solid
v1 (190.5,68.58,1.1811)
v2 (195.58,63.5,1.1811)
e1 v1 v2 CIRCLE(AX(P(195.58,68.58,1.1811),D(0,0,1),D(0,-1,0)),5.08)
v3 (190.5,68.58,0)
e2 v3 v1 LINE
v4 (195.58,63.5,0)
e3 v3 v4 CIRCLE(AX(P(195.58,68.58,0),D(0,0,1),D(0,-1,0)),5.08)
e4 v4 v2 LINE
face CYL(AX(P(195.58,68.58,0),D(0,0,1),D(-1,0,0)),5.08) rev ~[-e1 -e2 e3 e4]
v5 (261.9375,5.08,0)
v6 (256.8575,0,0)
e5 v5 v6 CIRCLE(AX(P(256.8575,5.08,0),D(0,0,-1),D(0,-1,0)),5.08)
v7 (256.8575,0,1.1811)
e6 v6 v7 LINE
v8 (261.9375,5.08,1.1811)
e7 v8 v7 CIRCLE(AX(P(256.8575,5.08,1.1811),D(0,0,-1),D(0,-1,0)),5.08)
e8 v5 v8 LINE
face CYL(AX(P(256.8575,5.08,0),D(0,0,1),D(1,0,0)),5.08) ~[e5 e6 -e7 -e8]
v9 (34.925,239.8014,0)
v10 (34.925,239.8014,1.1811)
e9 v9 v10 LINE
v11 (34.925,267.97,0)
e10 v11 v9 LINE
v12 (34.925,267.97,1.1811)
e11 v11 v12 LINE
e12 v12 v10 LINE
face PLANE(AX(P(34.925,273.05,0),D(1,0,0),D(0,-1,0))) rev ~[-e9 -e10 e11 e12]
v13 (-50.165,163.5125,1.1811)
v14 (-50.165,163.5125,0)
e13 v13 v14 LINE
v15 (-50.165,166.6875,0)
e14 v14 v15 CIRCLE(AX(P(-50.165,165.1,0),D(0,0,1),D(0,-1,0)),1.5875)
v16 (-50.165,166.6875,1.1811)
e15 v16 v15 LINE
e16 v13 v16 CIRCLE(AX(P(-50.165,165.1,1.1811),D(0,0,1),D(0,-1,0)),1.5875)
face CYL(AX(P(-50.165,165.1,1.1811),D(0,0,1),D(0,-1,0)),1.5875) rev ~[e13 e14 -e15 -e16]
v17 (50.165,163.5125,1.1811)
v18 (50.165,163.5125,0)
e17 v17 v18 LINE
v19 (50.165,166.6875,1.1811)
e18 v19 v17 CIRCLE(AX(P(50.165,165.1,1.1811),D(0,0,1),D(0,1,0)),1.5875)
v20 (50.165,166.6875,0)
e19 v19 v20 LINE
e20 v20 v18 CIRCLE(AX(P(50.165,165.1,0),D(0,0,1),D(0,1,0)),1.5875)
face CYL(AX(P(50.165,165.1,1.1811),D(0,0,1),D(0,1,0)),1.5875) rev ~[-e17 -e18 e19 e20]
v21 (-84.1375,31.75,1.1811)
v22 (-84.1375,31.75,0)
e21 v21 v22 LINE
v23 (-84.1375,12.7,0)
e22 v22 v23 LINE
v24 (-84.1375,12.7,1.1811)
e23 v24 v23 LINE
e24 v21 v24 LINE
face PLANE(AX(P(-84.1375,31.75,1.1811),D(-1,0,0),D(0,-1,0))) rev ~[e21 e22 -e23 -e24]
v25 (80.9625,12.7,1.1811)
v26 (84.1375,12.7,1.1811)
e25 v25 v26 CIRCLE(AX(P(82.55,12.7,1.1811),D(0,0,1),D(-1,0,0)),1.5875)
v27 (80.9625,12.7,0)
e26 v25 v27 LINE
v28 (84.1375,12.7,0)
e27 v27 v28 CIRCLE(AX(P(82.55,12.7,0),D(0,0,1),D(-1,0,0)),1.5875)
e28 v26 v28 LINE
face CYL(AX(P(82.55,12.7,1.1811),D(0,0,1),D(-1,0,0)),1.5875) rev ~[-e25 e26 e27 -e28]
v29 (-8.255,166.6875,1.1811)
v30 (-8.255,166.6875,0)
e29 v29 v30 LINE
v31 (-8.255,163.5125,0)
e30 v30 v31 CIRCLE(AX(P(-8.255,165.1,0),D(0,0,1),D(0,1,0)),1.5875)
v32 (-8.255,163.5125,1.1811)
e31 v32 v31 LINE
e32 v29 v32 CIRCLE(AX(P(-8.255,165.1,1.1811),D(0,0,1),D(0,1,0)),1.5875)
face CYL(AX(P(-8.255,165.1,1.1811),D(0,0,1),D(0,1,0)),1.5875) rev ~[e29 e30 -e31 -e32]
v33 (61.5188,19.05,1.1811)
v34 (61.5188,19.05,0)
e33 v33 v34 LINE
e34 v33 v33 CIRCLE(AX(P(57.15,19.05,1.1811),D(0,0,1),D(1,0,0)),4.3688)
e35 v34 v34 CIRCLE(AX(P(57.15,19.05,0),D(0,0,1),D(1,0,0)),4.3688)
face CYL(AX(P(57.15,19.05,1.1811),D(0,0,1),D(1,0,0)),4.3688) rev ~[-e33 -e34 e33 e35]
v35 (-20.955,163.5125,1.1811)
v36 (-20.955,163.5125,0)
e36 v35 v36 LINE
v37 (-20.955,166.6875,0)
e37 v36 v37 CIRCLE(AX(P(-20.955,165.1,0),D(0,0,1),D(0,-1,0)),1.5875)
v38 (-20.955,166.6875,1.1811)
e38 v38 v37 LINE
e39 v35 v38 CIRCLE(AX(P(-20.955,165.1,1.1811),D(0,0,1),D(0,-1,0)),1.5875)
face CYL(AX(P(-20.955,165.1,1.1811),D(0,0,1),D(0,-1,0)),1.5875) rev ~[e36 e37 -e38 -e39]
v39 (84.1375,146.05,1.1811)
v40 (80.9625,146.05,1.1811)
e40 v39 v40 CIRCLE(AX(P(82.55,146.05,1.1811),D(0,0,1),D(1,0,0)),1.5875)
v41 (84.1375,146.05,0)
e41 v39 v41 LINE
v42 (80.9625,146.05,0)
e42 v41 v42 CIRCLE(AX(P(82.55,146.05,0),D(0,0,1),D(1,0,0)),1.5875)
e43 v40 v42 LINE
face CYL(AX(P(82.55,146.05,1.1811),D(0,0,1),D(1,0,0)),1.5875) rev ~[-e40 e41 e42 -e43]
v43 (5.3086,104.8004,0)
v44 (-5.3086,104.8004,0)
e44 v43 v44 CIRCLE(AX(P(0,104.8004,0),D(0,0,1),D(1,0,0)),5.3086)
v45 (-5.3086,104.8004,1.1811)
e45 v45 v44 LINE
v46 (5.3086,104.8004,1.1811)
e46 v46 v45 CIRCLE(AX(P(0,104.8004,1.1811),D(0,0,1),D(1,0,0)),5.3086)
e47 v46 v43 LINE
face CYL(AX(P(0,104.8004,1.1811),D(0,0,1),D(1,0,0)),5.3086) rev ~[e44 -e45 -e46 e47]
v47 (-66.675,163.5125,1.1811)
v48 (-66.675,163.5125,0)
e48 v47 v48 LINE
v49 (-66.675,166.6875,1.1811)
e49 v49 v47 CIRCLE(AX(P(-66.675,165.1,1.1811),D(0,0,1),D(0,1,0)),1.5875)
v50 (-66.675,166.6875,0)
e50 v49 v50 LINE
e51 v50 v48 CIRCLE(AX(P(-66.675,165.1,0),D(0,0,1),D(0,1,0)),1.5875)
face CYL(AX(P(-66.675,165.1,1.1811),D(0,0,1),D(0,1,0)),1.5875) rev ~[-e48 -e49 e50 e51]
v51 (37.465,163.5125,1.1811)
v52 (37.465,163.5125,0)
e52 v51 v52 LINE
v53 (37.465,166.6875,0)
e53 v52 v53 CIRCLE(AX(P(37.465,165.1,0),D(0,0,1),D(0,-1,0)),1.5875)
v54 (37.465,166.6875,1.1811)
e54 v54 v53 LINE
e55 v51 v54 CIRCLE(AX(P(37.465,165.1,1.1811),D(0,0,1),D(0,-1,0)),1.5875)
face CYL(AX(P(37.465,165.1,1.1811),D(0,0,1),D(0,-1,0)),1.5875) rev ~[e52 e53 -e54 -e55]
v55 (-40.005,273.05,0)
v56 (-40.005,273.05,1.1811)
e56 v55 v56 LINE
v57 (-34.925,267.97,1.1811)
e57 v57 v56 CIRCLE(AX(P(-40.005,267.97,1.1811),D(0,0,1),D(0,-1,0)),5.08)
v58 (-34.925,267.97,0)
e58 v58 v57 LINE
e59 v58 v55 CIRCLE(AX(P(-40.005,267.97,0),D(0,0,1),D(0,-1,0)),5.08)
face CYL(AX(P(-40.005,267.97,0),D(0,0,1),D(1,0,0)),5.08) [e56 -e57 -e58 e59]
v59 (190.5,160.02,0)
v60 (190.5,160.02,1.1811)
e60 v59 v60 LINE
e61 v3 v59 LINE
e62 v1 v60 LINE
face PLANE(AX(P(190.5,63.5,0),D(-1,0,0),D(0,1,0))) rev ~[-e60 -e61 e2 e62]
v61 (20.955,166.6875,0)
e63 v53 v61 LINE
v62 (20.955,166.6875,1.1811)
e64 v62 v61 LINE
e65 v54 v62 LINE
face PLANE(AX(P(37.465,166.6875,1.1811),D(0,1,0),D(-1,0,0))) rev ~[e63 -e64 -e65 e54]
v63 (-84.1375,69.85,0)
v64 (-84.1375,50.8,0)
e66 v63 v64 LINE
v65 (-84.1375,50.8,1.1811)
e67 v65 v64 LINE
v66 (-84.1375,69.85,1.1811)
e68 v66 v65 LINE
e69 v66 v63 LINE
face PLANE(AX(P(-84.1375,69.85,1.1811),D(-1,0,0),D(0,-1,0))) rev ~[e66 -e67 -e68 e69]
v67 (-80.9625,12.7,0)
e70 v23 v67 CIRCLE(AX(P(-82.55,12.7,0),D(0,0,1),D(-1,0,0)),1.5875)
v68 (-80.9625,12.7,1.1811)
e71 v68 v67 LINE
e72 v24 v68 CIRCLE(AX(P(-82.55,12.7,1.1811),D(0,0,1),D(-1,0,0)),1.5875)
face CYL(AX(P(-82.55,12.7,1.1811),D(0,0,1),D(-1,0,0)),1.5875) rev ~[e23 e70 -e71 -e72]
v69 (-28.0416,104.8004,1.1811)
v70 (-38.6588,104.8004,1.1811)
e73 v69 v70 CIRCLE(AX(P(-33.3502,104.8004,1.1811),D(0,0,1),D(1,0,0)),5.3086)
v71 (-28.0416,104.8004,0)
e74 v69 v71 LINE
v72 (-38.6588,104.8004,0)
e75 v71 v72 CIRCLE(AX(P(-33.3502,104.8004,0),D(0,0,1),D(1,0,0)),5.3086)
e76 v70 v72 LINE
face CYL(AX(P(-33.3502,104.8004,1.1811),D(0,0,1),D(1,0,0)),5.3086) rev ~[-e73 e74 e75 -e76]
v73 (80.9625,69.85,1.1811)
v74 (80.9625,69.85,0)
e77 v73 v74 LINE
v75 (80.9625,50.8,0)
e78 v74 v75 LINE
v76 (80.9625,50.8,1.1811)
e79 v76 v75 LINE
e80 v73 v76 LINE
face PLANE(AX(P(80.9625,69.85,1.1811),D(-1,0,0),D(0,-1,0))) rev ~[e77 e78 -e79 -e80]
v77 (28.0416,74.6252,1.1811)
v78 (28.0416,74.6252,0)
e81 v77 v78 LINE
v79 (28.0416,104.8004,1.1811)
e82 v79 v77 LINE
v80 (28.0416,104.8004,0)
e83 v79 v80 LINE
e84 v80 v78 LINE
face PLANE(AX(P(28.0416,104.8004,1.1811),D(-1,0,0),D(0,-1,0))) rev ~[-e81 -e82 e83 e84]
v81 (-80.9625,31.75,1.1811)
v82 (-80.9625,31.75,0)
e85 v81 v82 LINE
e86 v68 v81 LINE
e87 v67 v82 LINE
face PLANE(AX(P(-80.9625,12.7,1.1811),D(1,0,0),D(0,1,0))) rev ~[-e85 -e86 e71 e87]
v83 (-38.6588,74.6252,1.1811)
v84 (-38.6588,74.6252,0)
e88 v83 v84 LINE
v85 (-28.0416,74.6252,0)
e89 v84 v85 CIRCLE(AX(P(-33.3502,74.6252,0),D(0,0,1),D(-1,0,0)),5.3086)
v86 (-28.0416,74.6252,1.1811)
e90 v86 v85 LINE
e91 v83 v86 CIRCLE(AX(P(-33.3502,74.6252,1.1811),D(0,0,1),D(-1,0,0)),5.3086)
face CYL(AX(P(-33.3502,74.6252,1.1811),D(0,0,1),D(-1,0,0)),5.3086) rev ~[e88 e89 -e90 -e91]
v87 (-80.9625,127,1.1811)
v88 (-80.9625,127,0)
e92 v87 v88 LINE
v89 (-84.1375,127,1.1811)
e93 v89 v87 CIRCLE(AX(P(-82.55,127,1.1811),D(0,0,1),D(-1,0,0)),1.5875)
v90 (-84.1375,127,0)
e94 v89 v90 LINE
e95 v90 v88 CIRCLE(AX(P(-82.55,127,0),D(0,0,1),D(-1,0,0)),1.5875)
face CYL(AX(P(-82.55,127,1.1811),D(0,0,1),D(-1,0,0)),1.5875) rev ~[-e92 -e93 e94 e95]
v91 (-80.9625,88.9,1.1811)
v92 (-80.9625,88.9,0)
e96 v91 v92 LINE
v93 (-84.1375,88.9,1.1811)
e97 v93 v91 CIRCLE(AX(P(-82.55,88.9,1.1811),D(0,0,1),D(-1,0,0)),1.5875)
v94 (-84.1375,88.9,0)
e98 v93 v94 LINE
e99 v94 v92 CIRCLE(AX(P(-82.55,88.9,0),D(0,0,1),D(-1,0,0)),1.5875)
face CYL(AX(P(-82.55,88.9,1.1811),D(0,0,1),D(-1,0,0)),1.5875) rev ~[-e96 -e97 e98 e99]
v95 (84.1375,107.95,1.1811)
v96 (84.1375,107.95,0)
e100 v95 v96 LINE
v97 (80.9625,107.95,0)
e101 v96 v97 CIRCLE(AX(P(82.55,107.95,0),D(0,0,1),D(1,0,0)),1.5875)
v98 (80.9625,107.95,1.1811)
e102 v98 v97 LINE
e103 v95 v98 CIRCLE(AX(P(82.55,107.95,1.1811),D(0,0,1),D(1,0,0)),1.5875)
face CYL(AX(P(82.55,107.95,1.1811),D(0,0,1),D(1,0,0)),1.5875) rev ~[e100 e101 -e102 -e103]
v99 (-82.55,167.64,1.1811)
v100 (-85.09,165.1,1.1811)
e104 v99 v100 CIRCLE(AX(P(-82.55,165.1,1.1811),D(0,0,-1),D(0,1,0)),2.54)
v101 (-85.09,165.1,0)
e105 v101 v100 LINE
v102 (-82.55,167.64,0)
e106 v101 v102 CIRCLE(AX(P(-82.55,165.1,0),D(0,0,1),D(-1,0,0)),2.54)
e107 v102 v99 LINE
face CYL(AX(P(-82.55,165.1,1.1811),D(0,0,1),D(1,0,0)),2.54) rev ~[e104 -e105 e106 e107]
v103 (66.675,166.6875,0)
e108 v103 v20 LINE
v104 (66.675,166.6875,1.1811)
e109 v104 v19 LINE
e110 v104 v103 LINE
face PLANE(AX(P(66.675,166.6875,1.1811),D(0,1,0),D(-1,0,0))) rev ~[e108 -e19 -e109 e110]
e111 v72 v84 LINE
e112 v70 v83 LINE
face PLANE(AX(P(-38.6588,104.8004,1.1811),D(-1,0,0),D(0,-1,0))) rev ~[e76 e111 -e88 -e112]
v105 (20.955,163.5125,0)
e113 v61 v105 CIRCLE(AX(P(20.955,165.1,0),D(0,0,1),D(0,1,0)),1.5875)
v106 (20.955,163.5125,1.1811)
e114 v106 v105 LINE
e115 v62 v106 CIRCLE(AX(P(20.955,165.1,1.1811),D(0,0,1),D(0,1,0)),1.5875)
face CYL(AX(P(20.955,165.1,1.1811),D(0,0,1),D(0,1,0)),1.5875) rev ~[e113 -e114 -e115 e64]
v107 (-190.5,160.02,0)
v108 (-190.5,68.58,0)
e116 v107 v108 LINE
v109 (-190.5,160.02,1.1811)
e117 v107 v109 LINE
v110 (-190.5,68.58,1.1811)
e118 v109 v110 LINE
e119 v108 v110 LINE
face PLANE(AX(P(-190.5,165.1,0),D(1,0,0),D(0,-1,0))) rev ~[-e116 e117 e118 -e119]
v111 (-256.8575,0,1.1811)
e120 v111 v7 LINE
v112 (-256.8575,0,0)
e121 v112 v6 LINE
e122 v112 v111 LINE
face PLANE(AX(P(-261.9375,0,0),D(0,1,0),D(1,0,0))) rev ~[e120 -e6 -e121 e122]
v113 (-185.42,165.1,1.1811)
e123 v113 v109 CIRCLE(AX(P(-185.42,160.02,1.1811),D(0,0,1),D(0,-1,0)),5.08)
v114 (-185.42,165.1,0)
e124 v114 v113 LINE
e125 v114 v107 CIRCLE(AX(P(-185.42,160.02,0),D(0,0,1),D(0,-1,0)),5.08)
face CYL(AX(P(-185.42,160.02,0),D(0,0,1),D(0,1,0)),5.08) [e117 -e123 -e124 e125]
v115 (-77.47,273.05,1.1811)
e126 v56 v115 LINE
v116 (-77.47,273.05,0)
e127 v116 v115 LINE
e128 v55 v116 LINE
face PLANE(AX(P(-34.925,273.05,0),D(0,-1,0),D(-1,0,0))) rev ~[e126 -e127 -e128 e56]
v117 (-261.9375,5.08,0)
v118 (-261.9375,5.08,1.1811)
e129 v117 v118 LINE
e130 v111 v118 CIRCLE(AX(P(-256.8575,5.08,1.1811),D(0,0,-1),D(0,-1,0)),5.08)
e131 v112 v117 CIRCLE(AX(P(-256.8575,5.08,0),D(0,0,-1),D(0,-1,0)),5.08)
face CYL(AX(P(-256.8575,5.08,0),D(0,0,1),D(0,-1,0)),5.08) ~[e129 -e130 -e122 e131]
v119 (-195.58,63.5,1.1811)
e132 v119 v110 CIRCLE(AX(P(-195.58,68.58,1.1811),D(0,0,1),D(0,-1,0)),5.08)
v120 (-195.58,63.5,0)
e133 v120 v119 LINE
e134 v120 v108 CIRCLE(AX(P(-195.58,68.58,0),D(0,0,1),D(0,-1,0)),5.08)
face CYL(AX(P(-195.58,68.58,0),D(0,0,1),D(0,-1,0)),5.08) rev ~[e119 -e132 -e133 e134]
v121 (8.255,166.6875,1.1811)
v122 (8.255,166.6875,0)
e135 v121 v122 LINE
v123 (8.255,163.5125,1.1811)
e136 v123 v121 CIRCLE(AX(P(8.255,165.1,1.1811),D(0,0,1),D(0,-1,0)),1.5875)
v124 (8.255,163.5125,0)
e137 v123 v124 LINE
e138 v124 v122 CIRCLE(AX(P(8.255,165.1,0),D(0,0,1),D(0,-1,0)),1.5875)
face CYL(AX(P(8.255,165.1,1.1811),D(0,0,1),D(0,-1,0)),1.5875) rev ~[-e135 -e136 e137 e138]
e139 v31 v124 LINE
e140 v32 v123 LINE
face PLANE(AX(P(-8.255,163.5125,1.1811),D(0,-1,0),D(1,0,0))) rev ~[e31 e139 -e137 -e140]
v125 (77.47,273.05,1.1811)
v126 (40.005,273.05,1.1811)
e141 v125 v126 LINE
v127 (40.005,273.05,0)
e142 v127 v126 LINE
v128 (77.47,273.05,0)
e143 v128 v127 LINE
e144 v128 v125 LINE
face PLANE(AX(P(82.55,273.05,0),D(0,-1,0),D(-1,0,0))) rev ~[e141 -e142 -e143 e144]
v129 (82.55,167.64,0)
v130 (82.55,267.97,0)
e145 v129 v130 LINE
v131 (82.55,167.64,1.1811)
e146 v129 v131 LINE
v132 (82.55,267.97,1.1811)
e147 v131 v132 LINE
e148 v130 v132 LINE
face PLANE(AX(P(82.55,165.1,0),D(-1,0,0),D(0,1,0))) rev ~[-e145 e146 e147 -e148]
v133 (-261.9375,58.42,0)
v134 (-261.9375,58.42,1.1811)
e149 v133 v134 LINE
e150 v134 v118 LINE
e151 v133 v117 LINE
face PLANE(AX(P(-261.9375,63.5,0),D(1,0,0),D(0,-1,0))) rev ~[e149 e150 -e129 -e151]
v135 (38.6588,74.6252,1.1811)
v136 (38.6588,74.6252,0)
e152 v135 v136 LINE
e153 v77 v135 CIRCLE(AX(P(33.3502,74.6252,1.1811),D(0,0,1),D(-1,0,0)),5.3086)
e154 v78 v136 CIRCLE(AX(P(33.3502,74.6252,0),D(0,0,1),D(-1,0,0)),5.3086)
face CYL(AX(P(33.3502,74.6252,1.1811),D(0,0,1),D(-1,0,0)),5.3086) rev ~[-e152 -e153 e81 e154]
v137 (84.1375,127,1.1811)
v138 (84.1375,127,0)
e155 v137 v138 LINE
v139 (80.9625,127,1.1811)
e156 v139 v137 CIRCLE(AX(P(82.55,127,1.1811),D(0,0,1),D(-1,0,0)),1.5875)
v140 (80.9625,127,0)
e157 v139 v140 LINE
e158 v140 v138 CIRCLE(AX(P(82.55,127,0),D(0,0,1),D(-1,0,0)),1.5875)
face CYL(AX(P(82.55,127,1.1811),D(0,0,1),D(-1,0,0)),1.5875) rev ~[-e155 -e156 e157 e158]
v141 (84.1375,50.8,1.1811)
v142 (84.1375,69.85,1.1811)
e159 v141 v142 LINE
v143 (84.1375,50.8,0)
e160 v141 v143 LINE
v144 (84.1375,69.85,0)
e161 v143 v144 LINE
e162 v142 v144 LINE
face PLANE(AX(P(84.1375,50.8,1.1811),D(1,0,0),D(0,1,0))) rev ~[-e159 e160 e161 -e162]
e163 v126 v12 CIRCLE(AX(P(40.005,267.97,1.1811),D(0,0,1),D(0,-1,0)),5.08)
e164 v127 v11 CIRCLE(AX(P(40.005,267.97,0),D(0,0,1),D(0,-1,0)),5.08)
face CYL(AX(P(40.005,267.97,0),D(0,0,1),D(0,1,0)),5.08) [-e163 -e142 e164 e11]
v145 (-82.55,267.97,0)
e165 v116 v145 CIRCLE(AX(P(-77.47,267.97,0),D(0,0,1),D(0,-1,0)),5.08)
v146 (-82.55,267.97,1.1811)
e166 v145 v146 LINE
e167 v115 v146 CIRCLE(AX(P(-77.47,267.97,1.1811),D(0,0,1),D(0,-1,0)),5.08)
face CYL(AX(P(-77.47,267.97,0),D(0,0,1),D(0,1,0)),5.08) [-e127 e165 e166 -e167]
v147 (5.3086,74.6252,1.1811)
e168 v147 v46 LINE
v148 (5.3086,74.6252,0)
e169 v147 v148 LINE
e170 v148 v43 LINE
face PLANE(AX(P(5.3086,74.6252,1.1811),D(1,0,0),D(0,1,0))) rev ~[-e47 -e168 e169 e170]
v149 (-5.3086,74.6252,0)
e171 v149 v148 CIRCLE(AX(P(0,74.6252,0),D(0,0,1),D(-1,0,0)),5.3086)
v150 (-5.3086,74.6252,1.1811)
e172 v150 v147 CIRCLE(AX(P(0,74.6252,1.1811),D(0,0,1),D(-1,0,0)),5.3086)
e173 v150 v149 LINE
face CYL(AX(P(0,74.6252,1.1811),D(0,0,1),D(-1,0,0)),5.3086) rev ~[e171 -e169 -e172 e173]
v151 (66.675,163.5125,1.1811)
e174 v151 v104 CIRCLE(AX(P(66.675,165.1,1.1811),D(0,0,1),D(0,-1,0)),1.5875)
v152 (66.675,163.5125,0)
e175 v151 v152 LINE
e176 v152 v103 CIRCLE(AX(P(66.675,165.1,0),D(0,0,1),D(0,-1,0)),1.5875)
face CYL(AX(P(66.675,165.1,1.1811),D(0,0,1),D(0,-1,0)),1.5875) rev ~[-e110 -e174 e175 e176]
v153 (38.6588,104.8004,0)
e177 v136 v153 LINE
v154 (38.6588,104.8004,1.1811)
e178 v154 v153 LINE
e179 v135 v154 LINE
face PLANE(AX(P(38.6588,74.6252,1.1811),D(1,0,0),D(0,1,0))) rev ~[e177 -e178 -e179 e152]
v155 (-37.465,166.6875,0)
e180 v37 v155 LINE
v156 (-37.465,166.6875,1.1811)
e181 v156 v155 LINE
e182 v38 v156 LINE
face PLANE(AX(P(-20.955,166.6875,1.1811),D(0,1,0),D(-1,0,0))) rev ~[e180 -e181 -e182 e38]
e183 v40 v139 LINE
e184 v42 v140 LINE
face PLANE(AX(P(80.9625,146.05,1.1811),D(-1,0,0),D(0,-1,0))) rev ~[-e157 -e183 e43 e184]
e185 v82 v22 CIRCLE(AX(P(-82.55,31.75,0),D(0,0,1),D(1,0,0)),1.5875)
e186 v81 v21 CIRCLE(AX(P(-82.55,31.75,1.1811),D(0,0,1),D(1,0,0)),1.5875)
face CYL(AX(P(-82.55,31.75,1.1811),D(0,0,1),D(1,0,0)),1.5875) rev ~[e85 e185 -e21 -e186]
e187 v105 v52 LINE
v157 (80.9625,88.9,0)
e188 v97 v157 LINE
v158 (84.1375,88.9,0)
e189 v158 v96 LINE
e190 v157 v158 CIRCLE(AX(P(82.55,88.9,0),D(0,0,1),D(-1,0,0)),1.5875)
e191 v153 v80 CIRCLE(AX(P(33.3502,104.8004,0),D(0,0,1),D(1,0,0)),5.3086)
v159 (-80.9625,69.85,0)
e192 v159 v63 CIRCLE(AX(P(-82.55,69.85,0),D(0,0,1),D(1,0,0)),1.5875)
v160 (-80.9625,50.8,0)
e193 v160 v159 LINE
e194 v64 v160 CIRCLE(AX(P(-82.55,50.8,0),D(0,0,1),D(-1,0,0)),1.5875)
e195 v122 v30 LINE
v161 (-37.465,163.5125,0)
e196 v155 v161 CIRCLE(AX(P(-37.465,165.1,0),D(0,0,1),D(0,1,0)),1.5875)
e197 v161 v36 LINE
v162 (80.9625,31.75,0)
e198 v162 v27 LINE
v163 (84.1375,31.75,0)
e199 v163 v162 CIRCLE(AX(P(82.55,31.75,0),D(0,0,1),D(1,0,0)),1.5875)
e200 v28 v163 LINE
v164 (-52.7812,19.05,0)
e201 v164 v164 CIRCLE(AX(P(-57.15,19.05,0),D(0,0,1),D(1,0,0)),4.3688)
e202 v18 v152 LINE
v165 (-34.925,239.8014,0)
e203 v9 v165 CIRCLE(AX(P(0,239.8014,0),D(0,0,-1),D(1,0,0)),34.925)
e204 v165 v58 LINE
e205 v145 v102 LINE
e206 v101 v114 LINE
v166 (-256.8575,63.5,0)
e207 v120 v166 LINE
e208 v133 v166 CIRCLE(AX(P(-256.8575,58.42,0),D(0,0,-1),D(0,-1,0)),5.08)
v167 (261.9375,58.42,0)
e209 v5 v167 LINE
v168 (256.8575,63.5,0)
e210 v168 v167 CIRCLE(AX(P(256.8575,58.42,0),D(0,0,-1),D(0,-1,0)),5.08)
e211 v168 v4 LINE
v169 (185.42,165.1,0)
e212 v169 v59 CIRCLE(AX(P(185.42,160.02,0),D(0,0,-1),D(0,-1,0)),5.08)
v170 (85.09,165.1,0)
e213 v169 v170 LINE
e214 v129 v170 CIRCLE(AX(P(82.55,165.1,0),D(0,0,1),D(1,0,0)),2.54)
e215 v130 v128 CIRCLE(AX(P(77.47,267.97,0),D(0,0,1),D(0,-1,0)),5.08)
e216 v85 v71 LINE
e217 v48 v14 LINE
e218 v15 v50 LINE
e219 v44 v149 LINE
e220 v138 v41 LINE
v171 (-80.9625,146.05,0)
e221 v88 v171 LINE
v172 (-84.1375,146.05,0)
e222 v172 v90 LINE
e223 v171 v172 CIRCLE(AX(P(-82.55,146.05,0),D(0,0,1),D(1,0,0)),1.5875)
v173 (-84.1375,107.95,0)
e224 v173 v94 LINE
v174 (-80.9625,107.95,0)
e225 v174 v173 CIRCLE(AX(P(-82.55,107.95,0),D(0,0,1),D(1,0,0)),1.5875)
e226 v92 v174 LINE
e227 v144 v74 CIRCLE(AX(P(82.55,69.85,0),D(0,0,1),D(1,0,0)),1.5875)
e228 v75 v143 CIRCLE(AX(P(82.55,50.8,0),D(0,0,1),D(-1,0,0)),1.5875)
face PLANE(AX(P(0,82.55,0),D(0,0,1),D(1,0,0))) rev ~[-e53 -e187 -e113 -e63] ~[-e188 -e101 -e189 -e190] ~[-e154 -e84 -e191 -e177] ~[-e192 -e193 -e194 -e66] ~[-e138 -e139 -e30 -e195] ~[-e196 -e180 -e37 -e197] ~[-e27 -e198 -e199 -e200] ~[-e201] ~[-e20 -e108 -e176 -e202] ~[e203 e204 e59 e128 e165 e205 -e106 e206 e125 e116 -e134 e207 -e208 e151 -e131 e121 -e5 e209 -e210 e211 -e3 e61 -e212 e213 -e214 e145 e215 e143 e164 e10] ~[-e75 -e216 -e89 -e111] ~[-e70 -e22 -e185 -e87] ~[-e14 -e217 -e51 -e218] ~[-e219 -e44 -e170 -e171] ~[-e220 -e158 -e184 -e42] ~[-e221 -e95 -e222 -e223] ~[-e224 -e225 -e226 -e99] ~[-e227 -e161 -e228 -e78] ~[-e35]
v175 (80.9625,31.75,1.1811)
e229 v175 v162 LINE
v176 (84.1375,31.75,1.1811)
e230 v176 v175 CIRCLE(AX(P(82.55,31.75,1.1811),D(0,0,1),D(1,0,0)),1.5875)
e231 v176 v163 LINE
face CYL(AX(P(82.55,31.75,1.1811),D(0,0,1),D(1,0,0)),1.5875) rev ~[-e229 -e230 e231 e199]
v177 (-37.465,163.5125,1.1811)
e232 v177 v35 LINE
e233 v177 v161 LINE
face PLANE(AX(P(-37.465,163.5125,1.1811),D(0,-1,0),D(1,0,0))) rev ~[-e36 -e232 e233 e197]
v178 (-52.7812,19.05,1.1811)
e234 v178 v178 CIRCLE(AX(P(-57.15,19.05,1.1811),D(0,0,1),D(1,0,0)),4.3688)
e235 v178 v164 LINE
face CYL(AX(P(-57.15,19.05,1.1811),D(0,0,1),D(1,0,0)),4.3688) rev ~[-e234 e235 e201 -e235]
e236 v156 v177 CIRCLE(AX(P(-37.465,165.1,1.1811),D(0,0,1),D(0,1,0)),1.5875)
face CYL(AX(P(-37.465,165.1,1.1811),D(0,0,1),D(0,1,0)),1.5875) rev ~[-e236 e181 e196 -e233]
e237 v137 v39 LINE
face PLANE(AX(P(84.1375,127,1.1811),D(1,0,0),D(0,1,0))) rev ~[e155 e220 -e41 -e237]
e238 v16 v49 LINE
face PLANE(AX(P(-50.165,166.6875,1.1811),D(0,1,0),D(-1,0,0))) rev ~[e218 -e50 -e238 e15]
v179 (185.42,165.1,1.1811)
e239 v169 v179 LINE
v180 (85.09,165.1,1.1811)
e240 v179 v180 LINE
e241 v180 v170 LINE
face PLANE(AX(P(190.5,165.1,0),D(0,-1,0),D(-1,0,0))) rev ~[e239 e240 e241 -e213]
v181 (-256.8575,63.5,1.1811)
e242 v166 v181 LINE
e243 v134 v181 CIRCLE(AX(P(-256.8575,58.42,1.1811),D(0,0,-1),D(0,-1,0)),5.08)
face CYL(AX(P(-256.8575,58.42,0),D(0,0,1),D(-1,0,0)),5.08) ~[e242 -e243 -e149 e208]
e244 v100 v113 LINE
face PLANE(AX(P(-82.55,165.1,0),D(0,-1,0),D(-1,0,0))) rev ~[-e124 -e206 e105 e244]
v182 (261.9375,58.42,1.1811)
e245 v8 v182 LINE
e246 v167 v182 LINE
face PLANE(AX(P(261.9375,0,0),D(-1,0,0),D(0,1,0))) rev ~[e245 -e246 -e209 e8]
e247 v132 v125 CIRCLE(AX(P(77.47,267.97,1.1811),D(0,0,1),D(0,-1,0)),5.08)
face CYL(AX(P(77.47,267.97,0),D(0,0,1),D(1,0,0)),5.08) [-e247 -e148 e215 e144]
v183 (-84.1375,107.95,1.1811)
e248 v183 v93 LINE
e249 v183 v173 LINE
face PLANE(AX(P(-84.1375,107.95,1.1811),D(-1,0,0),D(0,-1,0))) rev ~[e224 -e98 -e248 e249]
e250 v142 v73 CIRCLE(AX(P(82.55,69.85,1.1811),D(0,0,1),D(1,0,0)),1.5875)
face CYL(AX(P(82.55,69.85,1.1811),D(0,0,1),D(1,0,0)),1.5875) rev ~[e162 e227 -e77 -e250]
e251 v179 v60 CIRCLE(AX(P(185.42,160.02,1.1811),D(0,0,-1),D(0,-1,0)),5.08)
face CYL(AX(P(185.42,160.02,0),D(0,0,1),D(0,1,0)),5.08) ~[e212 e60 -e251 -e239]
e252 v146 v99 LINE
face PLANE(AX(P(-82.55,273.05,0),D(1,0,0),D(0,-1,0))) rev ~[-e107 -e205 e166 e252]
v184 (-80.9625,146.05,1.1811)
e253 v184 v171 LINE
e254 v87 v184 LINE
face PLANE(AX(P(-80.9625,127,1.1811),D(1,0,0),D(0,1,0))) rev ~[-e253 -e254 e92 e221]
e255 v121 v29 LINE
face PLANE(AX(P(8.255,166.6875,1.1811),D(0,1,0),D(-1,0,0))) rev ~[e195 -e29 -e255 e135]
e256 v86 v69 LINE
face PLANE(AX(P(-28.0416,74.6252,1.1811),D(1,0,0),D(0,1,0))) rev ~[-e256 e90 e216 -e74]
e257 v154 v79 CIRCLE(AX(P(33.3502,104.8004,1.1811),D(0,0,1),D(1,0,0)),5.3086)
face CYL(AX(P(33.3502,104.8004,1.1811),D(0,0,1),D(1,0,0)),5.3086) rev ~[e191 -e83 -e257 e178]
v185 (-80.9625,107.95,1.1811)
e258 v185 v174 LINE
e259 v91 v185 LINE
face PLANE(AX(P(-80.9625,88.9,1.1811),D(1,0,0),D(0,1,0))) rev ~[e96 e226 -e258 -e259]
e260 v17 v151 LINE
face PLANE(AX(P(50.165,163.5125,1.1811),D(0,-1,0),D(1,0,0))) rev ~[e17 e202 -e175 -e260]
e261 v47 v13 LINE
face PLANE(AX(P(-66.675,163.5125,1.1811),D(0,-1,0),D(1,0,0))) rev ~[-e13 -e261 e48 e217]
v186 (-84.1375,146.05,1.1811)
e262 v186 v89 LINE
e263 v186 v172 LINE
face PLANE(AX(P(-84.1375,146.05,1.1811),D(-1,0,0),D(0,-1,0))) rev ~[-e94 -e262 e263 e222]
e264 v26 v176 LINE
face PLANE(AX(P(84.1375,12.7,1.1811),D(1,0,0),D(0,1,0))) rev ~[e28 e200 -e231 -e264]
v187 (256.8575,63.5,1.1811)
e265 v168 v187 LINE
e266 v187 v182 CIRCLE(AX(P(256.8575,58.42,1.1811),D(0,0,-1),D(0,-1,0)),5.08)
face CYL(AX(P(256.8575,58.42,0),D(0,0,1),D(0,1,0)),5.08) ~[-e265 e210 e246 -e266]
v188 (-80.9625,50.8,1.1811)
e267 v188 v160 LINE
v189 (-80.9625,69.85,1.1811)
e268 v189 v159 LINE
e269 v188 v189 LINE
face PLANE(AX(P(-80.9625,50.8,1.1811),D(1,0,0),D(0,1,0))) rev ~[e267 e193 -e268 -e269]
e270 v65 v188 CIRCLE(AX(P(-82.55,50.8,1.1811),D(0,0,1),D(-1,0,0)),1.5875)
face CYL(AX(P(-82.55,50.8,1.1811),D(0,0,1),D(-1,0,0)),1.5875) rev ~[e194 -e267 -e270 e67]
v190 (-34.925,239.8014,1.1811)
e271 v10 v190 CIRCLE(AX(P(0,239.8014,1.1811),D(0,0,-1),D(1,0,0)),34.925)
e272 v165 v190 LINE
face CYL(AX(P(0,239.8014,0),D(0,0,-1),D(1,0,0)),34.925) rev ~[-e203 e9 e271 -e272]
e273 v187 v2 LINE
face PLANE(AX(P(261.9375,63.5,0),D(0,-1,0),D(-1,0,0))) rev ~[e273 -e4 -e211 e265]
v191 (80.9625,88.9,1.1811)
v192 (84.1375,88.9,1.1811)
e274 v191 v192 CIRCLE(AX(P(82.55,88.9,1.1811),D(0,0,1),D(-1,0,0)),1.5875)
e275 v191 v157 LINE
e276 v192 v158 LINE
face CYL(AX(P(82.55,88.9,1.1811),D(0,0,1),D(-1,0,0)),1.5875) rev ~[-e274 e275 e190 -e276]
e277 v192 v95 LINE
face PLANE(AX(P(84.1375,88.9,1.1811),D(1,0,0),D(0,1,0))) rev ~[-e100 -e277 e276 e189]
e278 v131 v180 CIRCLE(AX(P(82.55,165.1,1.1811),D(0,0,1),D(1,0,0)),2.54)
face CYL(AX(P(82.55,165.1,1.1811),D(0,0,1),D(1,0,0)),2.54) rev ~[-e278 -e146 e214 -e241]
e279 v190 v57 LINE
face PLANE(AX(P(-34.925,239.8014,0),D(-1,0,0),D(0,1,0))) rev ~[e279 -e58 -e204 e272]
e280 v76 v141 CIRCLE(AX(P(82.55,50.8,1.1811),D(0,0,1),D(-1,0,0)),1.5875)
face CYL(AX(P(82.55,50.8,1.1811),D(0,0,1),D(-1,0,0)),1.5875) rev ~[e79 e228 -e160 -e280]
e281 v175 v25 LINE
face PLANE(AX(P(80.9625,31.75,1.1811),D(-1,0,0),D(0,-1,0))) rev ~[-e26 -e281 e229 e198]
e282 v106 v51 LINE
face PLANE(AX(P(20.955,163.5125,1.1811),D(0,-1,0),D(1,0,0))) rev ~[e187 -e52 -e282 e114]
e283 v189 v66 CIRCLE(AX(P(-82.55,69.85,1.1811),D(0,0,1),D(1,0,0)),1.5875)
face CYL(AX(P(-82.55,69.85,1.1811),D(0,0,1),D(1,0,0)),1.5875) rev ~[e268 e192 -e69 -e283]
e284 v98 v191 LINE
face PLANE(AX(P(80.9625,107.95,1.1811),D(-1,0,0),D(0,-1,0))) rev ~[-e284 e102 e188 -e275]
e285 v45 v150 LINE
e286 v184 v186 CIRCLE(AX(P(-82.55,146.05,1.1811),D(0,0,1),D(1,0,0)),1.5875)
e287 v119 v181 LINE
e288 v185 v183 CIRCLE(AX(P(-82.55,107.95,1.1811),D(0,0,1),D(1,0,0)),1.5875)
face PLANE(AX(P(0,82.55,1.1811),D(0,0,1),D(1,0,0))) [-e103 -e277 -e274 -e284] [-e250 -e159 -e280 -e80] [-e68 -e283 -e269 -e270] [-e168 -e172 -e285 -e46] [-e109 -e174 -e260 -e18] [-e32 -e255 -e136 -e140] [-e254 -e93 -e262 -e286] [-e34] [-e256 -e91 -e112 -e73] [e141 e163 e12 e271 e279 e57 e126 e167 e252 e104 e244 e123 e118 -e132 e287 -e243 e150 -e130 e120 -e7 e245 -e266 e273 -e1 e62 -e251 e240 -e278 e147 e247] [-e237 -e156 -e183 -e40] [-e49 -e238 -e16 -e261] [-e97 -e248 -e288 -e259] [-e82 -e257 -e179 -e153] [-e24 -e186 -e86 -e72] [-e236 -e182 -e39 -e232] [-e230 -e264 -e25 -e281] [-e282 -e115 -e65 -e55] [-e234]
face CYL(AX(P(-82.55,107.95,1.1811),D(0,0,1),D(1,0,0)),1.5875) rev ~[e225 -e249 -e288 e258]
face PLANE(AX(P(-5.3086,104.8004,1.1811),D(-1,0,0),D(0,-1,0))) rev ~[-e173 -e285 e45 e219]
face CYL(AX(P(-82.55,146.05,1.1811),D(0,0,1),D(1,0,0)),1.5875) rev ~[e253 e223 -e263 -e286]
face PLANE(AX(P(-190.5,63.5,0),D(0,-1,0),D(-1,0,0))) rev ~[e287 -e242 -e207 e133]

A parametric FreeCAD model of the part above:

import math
import FreeCAD as App
import Part
import Sketcher
Q = App.Units.Quantity


def edges_at(feature, points):
    """Names of the edges that pass closest to the given points."""
    edges = feature.Shape.Edges
    near = lambda p: min(range(len(edges)), key=lambda i: edges[i].distToShape(Part.Vertex(*p))[0])
    return sorted({f"Edge{near(p) + 1}" for p in points})

doc = App.newDocument("Part")
params = doc.addObject("Spreadsheet::Sheet", "Params")
for row, (alias, value) in enumerate([
    ("sketch1_height", "4 in"),
    ("sketch1_height2", "2.5 in"),
    ("sketch1_radius", "1.375 in"),
    ("sketch1_width", "4.25 in"),
    ("sketch1_width2", "2.8125 in"),
    ("pad1_length", "0.0465 in"),
    ("sketch2_diameter", "0.344 in"),
    ("sketch2_radius", "0.209 in"),
    ("sketch2_height", "1.188 in"),
    ("fillet_radius", "0.2 in"),
    ("sketch3_diameter", "0.2 in"),
    ("sketch3_radius", "0.0625 in"),
    ("sketch3_width", "0.65 in"),
    ("sketch3_height", "0.75 in"),
], start=1):
    params.set(f"A{row}", alias)
    params.set(f"B{row}", "=" + value)
    params.setAlias(f"B{row}", alias)

body = doc.addObject("PartDesign::Body", "Body")

sketch1 = body.newObject("Sketcher::SketchObject", "Sketch")
sketch1.AttachmentSupport = (doc.getObject("XY_Plane"), [""])
sketch1.MapMode = "FlatFace"
sketch1.addGeometry([
    Part.LineSegment(App.Vector(83, 165, 0), App.Vector(83, 273, 0)),
    Part.LineSegment(App.Vector(83, 273, 0), App.Vector(35, 273, 0)),
    Part.LineSegment(App.Vector(35, 273, 0), App.Vector(35, 240, 0)),
    Part.ArcOfCircle(Part.Circle(App.Vector(0, 240, 0), App.Vector(0, 0, 1), 35), math.radians(180), math.radians(360)),
    Part.LineSegment(App.Vector(-35, 240, 0), App.Vector(-35, 273, 0)),
    Part.LineSegment(App.Vector(-35, 273, 0), App.Vector(-83, 273, 0)),
    Part.LineSegment(App.Vector(-83, 273, 0), App.Vector(-83, 165, 0)),
    Part.LineSegment(App.Vector(-83, 165, 0), App.Vector(-190, 165, 0)),
    Part.LineSegment(App.Vector(-190, 165, 0), App.Vector(-190, 64, 0)),
    Part.LineSegment(App.Vector(-190, 64, 0), App.Vector(-262, 64, 0)),
    Part.LineSegment(App.Vector(-262, 64, 0), App.Vector(-262, 0, 0)),
    Part.LineSegment(App.Vector(-262, 0, 0), App.Vector(262, 0, 0)),
    Part.LineSegment(App.Vector(262, 0, 0), App.Vector(262, 64, 0)),
    Part.LineSegment(App.Vector(262, 64, 0), App.Vector(190, 64, 0)),
    Part.LineSegment(App.Vector(190, 64, 0), App.Vector(190, 165, 0)),
    Part.LineSegment(App.Vector(190, 165, 0), App.Vector(83, 165, 0)),
], False)
sketch1.addConstraint([
    Sketcher.Constraint("Coincident", 0, 2, 1, 1),
    Sketcher.Constraint("Coincident", 1, 2, 2, 1),
    Sketcher.Constraint("Tangent", 2, 2, 3, 2),
    Sketcher.Constraint("Tangent", 3, 1, 4, 1),
    Sketcher.Constraint("Coincident", 4, 2, 5, 1),
    Sketcher.Constraint("Coincident", 5, 2, 6, 1),
    Sketcher.Constraint("Coincident", 6, 2, 7, 1),
    Sketcher.Constraint("Coincident", 7, 2, 8, 1),
    Sketcher.Constraint("Coincident", 8, 2, 9, 1),
    Sketcher.Constraint("Coincident", 9, 2, 10, 1),
    Sketcher.Constraint("Coincident", 10, 2, 11, 1),
    Sketcher.Constraint("Coincident", 11, 2, 12, 1),
    Sketcher.Constraint("Coincident", 12, 2, 13, 1),
    Sketcher.Constraint("Coincident", 13, 2, 14, 1),
    Sketcher.Constraint("Coincident", 14, 2, 15, 1),
    Sketcher.Constraint("Coincident", 15, 2, 0, 1),
    Sketcher.Constraint("Vertical", 0),
    Sketcher.Constraint("Horizontal", 1),
    Sketcher.Constraint("Vertical", 2),
    Sketcher.Constraint("Vertical", 4),
    Sketcher.Constraint("Horizontal", 5),
    Sketcher.Constraint("Vertical", 6),
    Sketcher.Constraint("Horizontal", 7),
    Sketcher.Constraint("Vertical", 8),
    Sketcher.Constraint("Horizontal", 9),
    Sketcher.Constraint("Vertical", 10),
    Sketcher.Constraint("Horizontal", 11),
    Sketcher.Constraint("Vertical", 12),
    Sketcher.Constraint("Horizontal", 13),
    Sketcher.Constraint("Vertical", 14),
    Sketcher.Constraint("Horizontal", 15),
    Sketcher.Constraint("Symmetric", 10, 2, 11, 2, -1, 1),
    Sketcher.Constraint("Symmetric", 1, 2, 4, 2, -2),
    Sketcher.Constraint("Symmetric", 8, 2, 13, 2, -2),
    Sketcher.Constraint("Symmetric", 6, 2, 15, 2, -2),
    Sketcher.Constraint("Equal", 15, 0),
    Sketcher.Constraint("DistanceY", 8, 2, 8, 1, Q("4 in")),
    Sketcher.Constraint("DistanceY", 10, 2, 10, 1, Q("2.5 in")),
    Sketcher.Constraint("Radius", 3, Q("1.375 in")),
    Sketcher.Constraint("DistanceX", 7, 2, 7, 1, Q("4.25 in")),
    Sketcher.Constraint("DistanceX", 7, 2, -1, 1, Q("7.5 in")),
    Sketcher.Constraint("DistanceX", 9, 2, 9, 1, Q("2.8125 in")),
    Sketcher.Constraint("DistanceY", 2, 2, 2, 1, Q("1.309 in")),
])
sketch1.setExpression("Constraints[36]", "Params.sketch1_height")
sketch1.setExpression("Constraints[37]", "Params.sketch1_height2")
sketch1.setExpression("Constraints[38]", "Params.sketch1_radius")
sketch1.setExpression("Constraints[39]", "Params.sketch1_width")
sketch1.setExpression("Constraints[41]", "Params.sketch1_width2")
pad1 = body.newObject("PartDesign::Pad", "Pad")
pad1.Profile = sketch1
pad1.setExpression("Length", "Params.pad1_length")

sketch2 = body.newObject("Sketcher::SketchObject", "Sketch001")
sketch2.AttachmentSupport = (doc.getObject("XY_Plane"), [""])
sketch2.MapMode = "FlatFace"
sketch2.AttachmentOffset = App.Placement(App.Vector(0, 0, 0.0465 * 25.4), App.Rotation())
sketch2.addGeometry([
    Part.Circle(App.Vector(-57.1, 19.1, 0), App.Vector(0, 0, 1), 4.4),
    Part.Circle(App.Vector(57.1, 19.1, 0), App.Vector(0, 0, 1), 4.4),
    Part.ArcOfCircle(Part.Circle(App.Vector(-33.4, 104.8, 0), App.Vector(0, 0, 1), 5.3), math.radians(0), math.radians(180)),
    Part.LineSegment(App.Vector(-38.7, 104.8, 0), App.Vector(-38.7, 74.6, 0)),
    Part.ArcOfCircle(Part.Circle(App.Vector(-33.4, 74.6, 0), App.Vector(0, 0, 1), 5.3), math.radians(180), math.radians(360)),
    Part.LineSegment(App.Vector(-28, 74.6, 0), App.Vector(-28, 104.8, 0)),
    Part.ArcOfCircle(Part.Circle(App.Vector(0, 74.6, 0), App.Vector(0, 0, 1), 5.3), math.radians(180), math.radians(360)),
    Part.LineSegment(App.Vector(5.3, 74.6, 0), App.Vector(5.3, 104.8, 0)),
    Part.ArcOfCircle(Part.Circle(App.Vector(0, 104.8, 0), App.Vector(0, 0, 1), 5.3), math.radians(0), math.radians(180)),
    Part.LineSegment(App.Vector(-5.3, 104.8, 0), App.Vector(-5.3, 74.6, 0)),
    Part.ArcOfCircle(Part.Circle(App.Vector(33.4, 104.8, 0), App.Vector(0, 0, 1), 5.3), math.radians(0), math.radians(180)),
    Part.LineSegment(App.Vector(28, 104.8, 0), App.Vector(28, 74.6, 0)),
    Part.ArcOfCircle(Part.Circle(App.Vector(33.4, 74.6, 0), App.Vector(0, 0, 1), 5.3), math.radians(180), math.radians(360)),
    Part.LineSegment(App.Vector(38.7, 74.6, 0), App.Vector(38.7, 104.8, 0)),
], False)
sketch2.addConstraint([
    Sketcher.Constraint("Tangent", 2, 2, 3, 1),
    Sketcher.Constraint("Tangent", 3, 2, 4, 1),
    Sketcher.Constraint("Tangent", 4, 2, 5, 1),
    Sketcher.Constraint("Tangent", 5, 2, 2, 1),
    Sketcher.Constraint("Tangent", 6, 2, 7, 1),
    Sketcher.Constraint("Tangent", 7, 2, 8, 1),
    Sketcher.Constraint("Tangent", 8, 2, 9, 1),
    Sketcher.Constraint("Tangent", 9, 2, 6, 1),
    Sketcher.Constraint("Tangent", 10, 2, 11, 1),
    Sketcher.Constraint("Tangent", 11, 2, 12, 1),
    Sketcher.Constraint("Tangent", 12, 2, 13, 1),
    Sketcher.Constraint("Tangent", 13, 2, 10, 1),
    Sketcher.Constraint("Vertical", 3),
    Sketcher.Constraint("Vertical", 5),
    Sketcher.Constraint("Vertical", 7),
    Sketcher.Constraint("Vertical", 9),
    Sketcher.Constraint("Vertical", 11),
    Sketcher.Constraint("Vertical", 13),
    Sketcher.Constraint("Equal", 0, 1),
    Sketcher.Constraint("Equal", 4, 6),
    Sketcher.Constraint("Equal", 8, 10),
    Sketcher.Constraint("Symmetric", 0, 3, 1, 3, -2),
    Sketcher.Constraint("Symmetric", 2, 3, 10, 3, -2),
    Sketcher.Constraint("PointOnObject", 6, 3, -2),
    Sketcher.Constraint("Horizontal", 4, 3, 6, 3),
    Sketcher.Constraint("Horizontal", 2, 3, 8, 3),
    Sketcher.Constraint("Horizontal", 6, 3, 12, 3),
    Sketcher.Constraint("Diameter", 0, Q("0.344 in")),
    Sketcher.Constraint("Radius", 2, Q("0.209 in")),
    Sketcher.Constraint("DistanceX", 0, 3, 1, 3, Q("4.5 in")),
    Sketcher.Constraint("DistanceY", 3, 2, 3, 1, Q("1.188 in")),
    Sketcher.Constraint("DistanceY", -1, 1, 0, 3, Q("0.75 in")),
    Sketcher.Constraint("DistanceX", 2, 3, -1, 1, Q("1.313 in")),
    Sketcher.Constraint("DistanceY", -1, 1, 2, 3, Q("4.126 in")),
])
sketch2.setExpression("Constraints[27]", "Params.sketch2_diameter")
sketch2.setExpression("Constraints[28]", "Params.sketch2_radius")
sketch2.setExpression("Constraints[30]", "Params.sketch2_height")
pocket1 = body.newObject("PartDesign::Pocket", "Pocket")
pocket1.Profile = sketch2
pocket1.Type = "ThroughAll"
doc.recompute()

fillet = body.newObject("PartDesign::Fillet", "Fillet")
fillet.Base = (pocket1, edges_at(pocket1, [
    (-82.55, 273.05, 0.591),
    (-34.925, 273.05, 0.591),
    (34.925, 273.05, 0.591),
    (82.55, 273.05, 0.591),
    (190.5, 165.1, 0.591),
    (261.938, 63.5, 0.591),
    (190.5, 63.5, 0.591),
    (261.938, 0, 0.591),
    (-261.938, 0, 0.591),
    (-261.938, 63.5, 0.591),
    (-190.5, 63.5, 0.591),
    (-190.5, 165.1, 0.591),
]))
fillet.setExpression("Radius", "Params.fillet_radius")

sketch3 = body.newObject("Sketcher::SketchObject", "Sketch002")
sketch3.AttachmentSupport = (doc.getObject("XY_Plane"), [""])
sketch3.MapMode = "FlatFace"
sketch3.AttachmentOffset = App.Placement(App.Vector(0, 0, 0.0465 * 25.4), App.Rotation())
sketch3.addGeometry([
    Part.ArcOfCircle(Part.Circle(App.Vector(-82.5, 146.1, 0), App.Vector(0, 0, 1), 1.6), math.radians(0), math.radians(180)),
    Part.LineSegment(App.Vector(-84.1, 146.1, 0), App.Vector(-84.1, 127, 0)),
    Part.ArcOfCircle(Part.Circle(App.Vector(-82.5, 127, 0), App.Vector(0, 0, 1), 1.6), math.radians(180), math.radians(360)),
    Part.LineSegment(App.Vector(-81, 127, 0), App.Vector(-81, 146.1, 0)),
    Part.ArcOfCircle(Part.Circle(App.Vector(-82.5, 108, 0), App.Vector(0, 0, 1), 1.6), math.radians(0), math.radians(180)),
    Part.LineSegment(App.Vector(-84.1, 108, 0), App.Vector(-84.1, 88.9, 0)),
    Part.ArcOfCircle(Part.Circle(App.Vector(-82.5, 88.9, 0), App.Vector(0, 0, 1), 1.6), math.radians(180), math.radians(360)),
    Part.LineSegment(App.Vector(-81, 88.9, 0), App.Vector(-81, 108, 0)),
    Part.ArcOfCircle(Part.Circle(App.Vector(-82.5, 69.8, 0), App.Vector(0, 0, 1), 1.6), math.radians(0), math.radians(180)),
    Part.LineSegment(App.Vector(-84.1, 69.8, 0), App.Vector(-84.1, 50.8, 0)),
    Part.ArcOfCircle(Part.Circle(App.Vector(-82.5, 50.8, 0), App.Vector(0, 0, 1), 1.6), math.radians(180), math.radians(360)),
    Part.LineSegment(App.Vector(-81, 50.8, 0), App.Vector(-81, 69.8, 0)),
    Part.ArcOfCircle(Part.Circle(App.Vector(-82.5, 31.8, 0), App.Vector(0, 0, 1), 1.6), math.radians(0), math.radians(180)),
    Part.LineSegment(App.Vector(-84.1, 31.8, 0), App.Vector(-84.1, 12.7, 0)),
    Part.ArcOfCircle(Part.Circle(App.Vector(-82.5, 12.7, 0), App.Vector(0, 0, 1), 1.6), math.radians(180), math.radians(360)),
    Part.LineSegment(App.Vector(-81, 12.7, 0), App.Vector(-81, 31.8, 0)),
    Part.LineSegment(App.Vector(84.1, 127, 0), App.Vector(84.1, 146.1, 0)),
    Part.ArcOfCircle(Part.Circle(App.Vector(82.5, 146.1, 0), App.Vector(0, 0, 1), 1.6), math.radians(0), math.radians(180)),
    Part.LineSegment(App.Vector(81, 146.1, 0), App.Vector(81, 127, 0)),
    Part.ArcOfCircle(Part.Circle(App.Vector(82.5, 127, 0), App.Vector(0, 0, 1), 1.6), math.radians(180), math.radians(360)),
    Part.LineSegment(App.Vector(81, 108, 0), App.Vector(81, 88.9, 0)),
    Part.ArcOfCircle(Part.Circle(App.Vector(82.5, 88.9, 0), App.Vector(0, 0, 1), 1.6), math.radians(180), math.radians(360)),
    Part.LineSegment(App.Vector(84.1, 88.9, 0), App.Vector(84.1, 108, 0)),
    Part.ArcOfCircle(Part.Circle(App.Vector(82.5, 108, 0), App.Vector(0, 0, 1), 1.6), math.radians(0), math.radians(180)),
    Part.LineSegment(App.Vector(84.1, 50.8, 0), App.Vector(84.1, 69.8, 0)),
    Part.ArcOfCircle(Part.Circle(App.Vector(82.5, 69.8, 0), App.Vector(0, 0, 1), 1.6), math.radians(0), math.radians(180)),
    Part.LineSegment(App.Vector(81, 69.8, 0), App.Vector(81, 50.8, 0)),
    Part.ArcOfCircle(Part.Circle(App.Vector(82.5, 50.8, 0), App.Vector(0, 0, 1), 1.6), math.radians(180), math.radians(360)),
    Part.LineSegment(App.Vector(81, 31.8, 0), App.Vector(81, 12.7, 0)),
    Part.ArcOfCircle(Part.Circle(App.Vector(82.5, 12.7, 0), App.Vector(0, 0, 1), 1.6), math.radians(180), math.radians(360)),
    Part.LineSegment(App.Vector(84.1, 12.7, 0), App.Vector(84.1, 31.8, 0)),
    Part.ArcOfCircle(Part.Circle(App.Vector(82.5, 31.8, 0), App.Vector(0, 0, 1), 1.6), math.radians(0), math.radians(180)),
    Part.ArcOfCircle(Part.Circle(App.Vector(-66.7, 165.1, 0), App.Vector(0, 0, 1), 1.6), math.radians(90), math.radians(270)),
    Part.LineSegment(App.Vector(-66.7, 163.5, 0), App.Vector(-50.2, 163.5, 0)),
    Part.ArcOfCircle(Part.Circle(App.Vector(-50.2, 165.1, 0), App.Vector(0, 0, 1), 1.6), math.radians(-90), math.radians(90)),
    Part.LineSegment(App.Vector(-50.2, 166.7, 0), App.Vector(-66.7, 166.7, 0)),
    Part.ArcOfCircle(Part.Circle(App.Vector(-37.5, 165.1, 0), App.Vector(0, 0, 1), 1.6), math.radians(90), math.radians(270)),
    Part.LineSegment(App.Vector(-37.5, 163.5, 0), App.Vector(-21, 163.5, 0)),
    Part.ArcOfCircle(Part.Circle(App.Vector(-21, 165.1, 0), App.Vector(0, 0, 1), 1.6), math.radians(-90), math.radians(90)),
    Part.LineSegment(App.Vector(-21, 166.7, 0), App.Vector(-37.5, 166.7, 0)),
    Part.ArcOfCircle(Part.Circle(App.Vector(-8.3, 165.1, 0), App.Vector(0, 0, 1), 1.6), math.radians(90), math.radians(270)),
    Part.LineSegment(App.Vector(-8.3, 163.5, 0), App.Vector(8.3, 163.5, 0)),
    Part.ArcOfCircle(Part.Circle(App.Vector(8.3, 165.1, 0), App.Vector(0, 0, 1), 1.6), math.radians(-90), math.radians(90)),
    Part.LineSegment(App.Vector(8.3, 166.7, 0), App.Vector(-8.3, 166.7, 0)),
    Part.ArcOfCircle(Part.Circle(App.Vector(21, 165.1, 0), App.Vector(0, 0, 1), 1.6), math.radians(90), math.radians(270)),
    Part.LineSegment(App.Vector(21, 163.5, 0), App.Vector(37.5, 163.5, 0)),
    Part.ArcOfCircle(Part.Circle(App.Vector(37.5, 165.1, 0), App.Vector(0, 0, 1), 1.6), math.radians(-90), math.radians(90)),
    Part.LineSegment(App.Vector(37.5, 166.7, 0), App.Vector(21, 166.7, 0)),
    Part.ArcOfCircle(Part.Circle(App.Vector(50.2, 165.1, 0), App.Vector(0, 0, 1), 1.6), math.radians(90), math.radians(270)),
    Part.LineSegment(App.Vector(50.2, 163.5, 0), App.Vector(66.7, 163.5, 0)),
    Part.ArcOfCircle(Part.Circle(App.Vector(66.7, 165.1, 0), App.Vector(0, 0, 1), 1.6), math.radians(-90), math.radians(90)),
    Part.LineSegment(App.Vector(66.7, 166.7, 0), App.Vector(50.2, 166.7, 0)),
    Part.Circle(App.Vector(-82.5, 165.1, 0), App.Vector(0, 0, 1), 2.5),
    Part.Circle(App.Vector(82.5, 165.1, 0), App.Vector(0, 0, 1), 2.5),
], False)
sketch3.addConstraint([
    Sketcher.Constraint("Tangent", 0, 2, 1, 1),
    Sketcher.Constraint("Tangent", 1, 2, 2, 1),
    Sketcher.Constraint("Tangent", 2, 2, 3, 1),
    Sketcher.Constraint("Tangent", 3, 2, 0, 1),
    Sketcher.Constraint("Tangent", 4, 2, 5, 1),
    Sketcher.Constraint("Tangent", 5, 2, 6, 1),
    Sketcher.Constraint("Tangent", 6, 2, 7, 1),
    Sketcher.Constraint("Tangent", 7, 2, 4, 1),
    Sketcher.Constraint("Tangent", 8, 2, 9, 1),
    Sketcher.Constraint("Tangent", 9, 2, 10, 1),
    Sketcher.Constraint("Tangent", 10, 2, 11, 1),
    Sketcher.Constraint("Tangent", 11, 2, 8, 1),
    Sketcher.Constraint("Tangent", 12, 2, 13, 1),
    Sketcher.Constraint("Tangent", 13, 2, 14, 1),
    Sketcher.Constraint("Tangent", 14, 2, 15, 1),
    Sketcher.Constraint("Tangent", 15, 2, 12, 1),
    Sketcher.Constraint("Tangent", 16, 2, 17, 1),
    Sketcher.Constraint("Tangent", 17, 2, 18, 1),
    Sketcher.Constraint("Tangent", 18, 2, 19, 1),
    Sketcher.Constraint("Tangent", 19, 2, 16, 1),
    Sketcher.Constraint("Tangent", 20, 2, 21, 1),
    Sketcher.Constraint("Tangent", 21, 2, 22, 1),
    Sketcher.Constraint("Tangent", 22, 2, 23, 1),
    Sketcher.Constraint("Tangent", 23, 2, 20, 1),
    Sketcher.Constraint("Tangent", 24, 2, 25, 1),
    Sketcher.Constraint("Tangent", 25, 2, 26, 1),
    Sketcher.Constraint("Tangent", 26, 2, 27, 1),
    Sketcher.Constraint("Tangent", 27, 2, 24, 1),
    Sketcher.Constraint("Tangent", 28, 2, 29, 1),
    Sketcher.Constraint("Tangent", 29, 2, 30, 1),
    Sketcher.Constraint("Tangent", 30, 2, 31, 1),
    Sketcher.Constraint("Tangent", 31, 2, 28, 1),
    Sketcher.Constraint("Tangent", 32, 2, 33, 1),
    Sketcher.Constraint("Tangent", 33, 2, 34, 1),
    Sketcher.Constraint("Tangent", 34, 2, 35, 1),
    Sketcher.Constraint("Tangent", 35, 2, 32, 1),
    Sketcher.Constraint("Tangent", 36, 2, 37, 1),
    Sketcher.Constraint("Tangent", 37, 2, 38, 1),
    Sketcher.Constraint("Tangent", 38, 2, 39, 1),
    Sketcher.Constraint("Tangent", 39, 2, 36, 1),
    Sketcher.Constraint("Tangent", 40, 2, 41, 1),
    Sketcher.Constraint("Tangent", 41, 2, 42, 1),
    Sketcher.Constraint("Tangent", 42, 2, 43, 1),
    Sketcher.Constraint("Tangent", 43, 2, 40, 1),
    Sketcher.Constraint("Tangent", 44, 2, 45, 1),
    Sketcher.Constraint("Tangent", 45, 2, 46, 1),
    Sketcher.Constraint("Tangent", 46, 2, 47, 1),
    Sketcher.Constraint("Tangent", 47, 2, 44, 1),
    Sketcher.Constraint("Tangent", 48, 2, 49, 1),
    Sketcher.Constraint("Tangent", 49, 2, 50, 1),
    Sketcher.Constraint("Tangent", 50, 2, 51, 1),
    Sketcher.Constraint("Tangent", 51, 2, 48, 1),
    Sketcher.Constraint("Vertical", 1),
    Sketcher.Constraint("Vertical", 3),
    Sketcher.Constraint("Vertical", 5),
    Sketcher.Constraint("Vertical", 7),
    Sketcher.Constraint("Vertical", 9),
    Sketcher.Constraint("Vertical", 11),
    Sketcher.Constraint("Vertical", 13),
    Sketcher.Constraint("Vertical", 15),
    Sketcher.Constraint("Vertical", 16),
    Sketcher.Constraint("Vertical", 18),
    Sketcher.Constraint("Vertical", 20),
    Sketcher.Constraint("Vertical", 22),
    Sketcher.Constraint("Vertical", 24),
    Sketcher.Constraint("Vertical", 26),
    Sketcher.Constraint("Vertical", 28),
    Sketcher.Constraint("Vertical", 30),
    Sketcher.Constraint("Horizontal", 33),
    Sketcher.Constraint("Horizontal", 35),
    Sketcher.Constraint("Horizontal", 37),
    Sketcher.Constraint("Horizontal", 39),
    Sketcher.Constraint("Horizontal", 41),
    Sketcher.Constraint("Horizontal", 43),
    Sketcher.Constraint("Horizontal", 45),
    Sketcher.Constraint("Horizontal", 47),
    Sketcher.Constraint("Horizontal", 49),
    Sketcher.Constraint("Horizontal", 51),
    Sketcher.Constraint("Equal", 2, 4),
    Sketcher.Constraint("Equal", 6, 8),
    Sketcher.Constraint("Equal", 10, 12),
    Sketcher.Constraint("Equal", 14, 17),
    Sketcher.Constraint("Equal", 19, 21),
    Sketcher.Constraint("Equal", 23, 25),
    Sketcher.Constraint("Equal", 27, 29),
    Sketcher.Constraint("Equal", 31, 32),
    Sketcher.Constraint("Equal", 34, 36),
    Sketcher.Constraint("Equal", 38, 40),
    Sketcher.Constraint("Equal", 42, 44),
    Sketcher.Constraint("Equal", 46, 48),
    Sketcher.Constraint("Equal", 52, 53),
    Sketcher.Constraint("Symmetric", 0, 3, 17, 3, -2),
    Sketcher.Constraint("Symmetric", 6, 3, 21, 3, -2),
    Sketcher.Constraint("Symmetric", 8, 3, 25, 3, -2),
    Sketcher.Constraint("Symmetric", 14, 3, 29, 3, -2),
    Sketcher.Constraint("Symmetric", 38, 3, 44, 3, -2),
    Sketcher.Constraint("Symmetric", 34, 3, 48, 3, -2),
    Sketcher.Constraint("Symmetric", 52, 3, 53, 3, -2),
    Sketcher.Constraint("Horizontal", 2, 3, 19, 3),
    Sketcher.Constraint("Horizontal", 4, 3, 23, 3),
    Sketcher.Constraint("Horizontal", 10, 3, 27, 3),
    Sketcher.Constraint("Horizontal", 12, 3, 31, 3),
    Sketcher.Constraint("Horizontal", 34, 3, 36, 3),
    Sketcher.Constraint("Horizontal", 38, 3, 40, 3),
    Sketcher.Constraint("Horizontal", 50, 3, 52, 3),
    Sketcher.Constraint("Vertical", 2, 3, 4, 3),
    Sketcher.Constraint("Vertical", 6, 3, 8, 3),
    Sketcher.Constraint("Vertical", 10, 3, 12, 3),
    Sketcher.Constraint("Vertical", 14, 3, 52, 3),
    Sketcher.Constraint("Equal", 35, 37),
    Sketcher.Constraint("Equal", 39, 41),
    Sketcher.Constraint("Equal", 43, 45),
    Sketcher.Constraint("Equal", 47, 49),
    Sketcher.Constraint("Equal", 3, 5),
    Sketcher.Constraint("Equal", 7, 9),
    Sketcher.Constraint("Equal", 11, 13),
    Sketcher.Constraint("Diameter", 52, Q("0.2 in")),
    Sketcher.Constraint("DistanceY", -1, 1, 2, 3, Q("5 in")),
    Sketcher.Constraint("DistanceY", -1, 1, 10, 3, Q("2 in")),
    Sketcher.Constraint("Radius", 0, Q("0.0625 in")),
    Sketcher.Constraint("DistanceX", 33, 1, 33, 2, Q("0.65 in")),
    Sketcher.Constraint("DistanceY", 1, 2, 1, 1, Q("0.75 in")),
    Sketcher.Constraint("DistanceY", -1, 1, 6, 3, Q("3.5 in")),
    Sketcher.Constraint("DistanceY", -1, 1, 14, 3, Q("0.5 in")),
    Sketcher.Constraint("DistanceY", -1, 1, 32, 3, Q("6.5 in")),
    Sketcher.Constraint("DistanceX", 0, 3, -1, 1, Q("3.25 in")),
    Sketcher.Constraint("DistanceX", 32, 3, -1, 1, Q("2.625 in")),
    Sketcher.Constraint("DistanceX", 36, 3, -1, 1, Q("1.475 in")),
    Sketcher.Constraint("DistanceX", 40, 3, -1, 1, Q("0.325 in")),
])
sketch3.setExpression("Constraints[116]", "Params.sketch3_diameter")
sketch3.setExpression("Constraints[119]", "Params.sketch3_radius")
sketch3.setExpression("Constraints[120]", "Params.sketch3_width")
sketch3.setExpression("Constraints[121]", "Params.sketch3_height")
pocket2 = body.newObject("PartDesign::Pocket", "Pocket001")
pocket2.Profile = sketch3
pocket2.Type = "ThroughAll"

doc.recompute()
